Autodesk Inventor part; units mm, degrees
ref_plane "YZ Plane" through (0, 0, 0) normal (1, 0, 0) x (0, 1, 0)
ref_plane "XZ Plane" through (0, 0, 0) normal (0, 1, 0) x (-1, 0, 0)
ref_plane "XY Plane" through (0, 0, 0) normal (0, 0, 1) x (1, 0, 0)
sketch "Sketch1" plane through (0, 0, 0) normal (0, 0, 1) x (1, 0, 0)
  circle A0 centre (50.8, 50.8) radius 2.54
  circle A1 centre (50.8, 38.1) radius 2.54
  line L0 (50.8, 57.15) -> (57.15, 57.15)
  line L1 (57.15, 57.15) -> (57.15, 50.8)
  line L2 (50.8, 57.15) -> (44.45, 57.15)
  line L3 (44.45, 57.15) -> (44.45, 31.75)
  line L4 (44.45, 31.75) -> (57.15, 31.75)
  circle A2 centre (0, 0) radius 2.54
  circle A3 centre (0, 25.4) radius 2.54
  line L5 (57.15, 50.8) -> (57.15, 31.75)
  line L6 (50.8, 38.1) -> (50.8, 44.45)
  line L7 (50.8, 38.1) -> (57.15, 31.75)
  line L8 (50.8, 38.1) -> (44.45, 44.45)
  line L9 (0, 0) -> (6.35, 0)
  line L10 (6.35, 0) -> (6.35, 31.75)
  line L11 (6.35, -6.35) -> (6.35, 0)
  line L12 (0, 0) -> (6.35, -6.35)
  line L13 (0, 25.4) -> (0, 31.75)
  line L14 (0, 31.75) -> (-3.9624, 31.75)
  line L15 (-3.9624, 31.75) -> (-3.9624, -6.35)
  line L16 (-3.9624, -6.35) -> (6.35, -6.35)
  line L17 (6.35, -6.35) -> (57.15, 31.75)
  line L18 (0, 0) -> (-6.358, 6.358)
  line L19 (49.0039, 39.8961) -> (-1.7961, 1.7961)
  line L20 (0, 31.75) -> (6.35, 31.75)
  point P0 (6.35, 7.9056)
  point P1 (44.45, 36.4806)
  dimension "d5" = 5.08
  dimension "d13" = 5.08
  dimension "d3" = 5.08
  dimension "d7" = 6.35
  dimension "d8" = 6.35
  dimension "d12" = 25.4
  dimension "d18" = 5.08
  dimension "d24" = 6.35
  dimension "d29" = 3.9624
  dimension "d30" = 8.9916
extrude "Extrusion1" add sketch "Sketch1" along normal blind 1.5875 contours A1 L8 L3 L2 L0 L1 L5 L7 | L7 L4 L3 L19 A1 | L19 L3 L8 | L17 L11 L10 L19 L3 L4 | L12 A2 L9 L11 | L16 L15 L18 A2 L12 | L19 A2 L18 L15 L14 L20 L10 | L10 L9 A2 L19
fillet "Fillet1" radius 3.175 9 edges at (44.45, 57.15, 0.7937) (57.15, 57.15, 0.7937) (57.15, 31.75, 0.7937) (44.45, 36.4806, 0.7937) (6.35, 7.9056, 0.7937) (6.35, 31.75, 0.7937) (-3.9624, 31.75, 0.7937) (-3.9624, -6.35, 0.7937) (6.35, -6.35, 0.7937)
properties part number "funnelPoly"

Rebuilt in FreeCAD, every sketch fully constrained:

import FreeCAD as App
import Part
import Sketcher

V = App.Vector
Q = App.Units.Quantity


def edges_at(feature, points):
    """Names of the edges that pass closest to the given points."""
    edges = feature.Shape.Edges
    near = lambda p: min(range(len(edges)), key=lambda i: edges[i].distToShape(Part.Vertex(*p))[0])
    return sorted({f"Edge{near(p) + 1}" for p in points})

doc = App.newDocument("Part")
body = doc.addObject("PartDesign::Body", "Body")

# Sketch on XY plane
sketch1 = body.newObject("Sketcher::SketchObject", "Sketch")
sketch1.AttachmentSupport = (doc.getObject("XY_Plane"), [""])
sketch1.MapMode = "FlatFace"
sketch1.addGeometry(Part.LineSegment(V(44.5, 57.1, 0), V(44.5, 36.5, 0)), False)
sketch1.addGeometry(Part.LineSegment(V(44.5, 36.5, 0), V(6.3, 7.9, 0)), False)
sketch1.addGeometry(Part.LineSegment(V(6.3, 7.9, 0), V(6.3, 31.8, 0)), False)
sketch1.addGeometry(Part.LineSegment(V(6.3, 31.8, 0), V(0, 31.8, 0)), False)
sketch1.addGeometry(Part.LineSegment(V(0, 31.8, 0), V(-4, 31.8, 0)), False)
sketch1.addGeometry(Part.LineSegment(V(-4, 31.8, 0), V(-4, -6.3, 0)), False)
sketch1.addGeometry(Part.LineSegment(V(-4, -6.3, 0), V(6.3, -6.3, 0)), False)
sketch1.addGeometry(Part.LineSegment(V(6.3, -6.3, 0), V(57.1, 31.8, 0)), False)
sketch1.addGeometry(Part.LineSegment(V(57.1, 31.8, 0), V(57.1, 57.1, 0)), False)
sketch1.addGeometry(Part.LineSegment(V(57.1, 57.1, 0), V(44.5, 57.1, 0)), False)
sketch1.addGeometry(Part.Circle(V(50.8, 38.1, 0), V(0, 0, 1), 2.5), False)
sketch1.addGeometry(Part.Circle(V(50.8, 50.8, 0), V(0, 0, 1), 2.5), False)
sketch1.addGeometry(Part.Circle(V(0, 0, 0), V(0, 0, 1), 2.5), False)
sketch1.addGeometry(Part.Circle(V(0, 25.4, 0), V(0, 0, 1), 2.5), False)
sketch1.addConstraint(Sketcher.Constraint("Coincident", 0, 2, 1, 1))
sketch1.addConstraint(Sketcher.Constraint("Coincident", 1, 2, 2, 1))
sketch1.addConstraint(Sketcher.Constraint("Coincident", 2, 2, 3, 1))
sketch1.addConstraint(Sketcher.Constraint("Coincident", 3, 2, 4, 1))
sketch1.addConstraint(Sketcher.Constraint("Coincident", 4, 2, 5, 1))
sketch1.addConstraint(Sketcher.Constraint("Coincident", 5, 2, 6, 1))
sketch1.addConstraint(Sketcher.Constraint("Coincident", 6, 2, 7, 1))
sketch1.addConstraint(Sketcher.Constraint("Coincident", 7, 2, 8, 1))
sketch1.addConstraint(Sketcher.Constraint("Coincident", 8, 2, 9, 1))
sketch1.addConstraint(Sketcher.Constraint("Coincident", 9, 2, 0, 1))
sketch1.addConstraint(Sketcher.Constraint("Vertical", 0))
sketch1.addConstraint(Sketcher.Constraint("Vertical", 2))
sketch1.addConstraint(Sketcher.Constraint("Horizontal", 3))
sketch1.addConstraint(Sketcher.Constraint("Horizontal", 4))
sketch1.addConstraint(Sketcher.Constraint("Vertical", 5))
sketch1.addConstraint(Sketcher.Constraint("Horizontal", 6))
sketch1.addConstraint(Sketcher.Constraint("Vertical", 8))
sketch1.addConstraint(Sketcher.Constraint("Horizontal", 9))
sketch1.addConstraint(Sketcher.Constraint("Coincident", 12, 3, -1, 1))
sketch1.addConstraint(Sketcher.Constraint("Equal", 10, 11))
sketch1.addConstraint(Sketcher.Constraint("Equal", 11, 12))
sketch1.addConstraint(Sketcher.Constraint("Equal", 12, 13))
sketch1.addConstraint(Sketcher.Constraint("PointOnObject", 13, 3, -2))
sketch1.addConstraint(Sketcher.Constraint("PointOnObject", 3, 2, -2))
sketch1.addConstraint(Sketcher.Constraint("Parallel", 1, 7))
sketch1.addConstraint(Sketcher.Constraint("Horizontal", 4, 2, 7, 2))
sketch1.addConstraint(Sketcher.Constraint("Vertical", 10, 3, 11, 3))
sketch1.addConstraint(Sketcher.Constraint("Vertical", 2, 2, 6, 2))
sketch1.addConstraint(Sketcher.Constraint("Diameter", 10, Q("0.2 in")))
sketch1.addConstraint(Sketcher.Constraint("DistanceY", 8, 1, 8, 2, Q("1 in")))
sketch1.addConstraint(Sketcher.Constraint("DistanceY", -1, 1, 13, 3, Q("1 in")))
sketch1.addConstraint(Sketcher.Constraint("DistanceY", 13, 3, 11, 3, Q("1 in")))
sketch1.addConstraint(Sketcher.Constraint("DistanceX", 3, 2, 3, 1, Q("0.25 in")))
sketch1.addConstraint(Sketcher.Constraint("DistanceX", 4, 2, 4, 1, Q("0.156 in")))
sketch1.addConstraint(Sketcher.Constraint("DistanceY", 5, 2, -1, 1, Q("0.25 in")))
sketch1.addConstraint(Sketcher.Constraint("DistanceX", 0, 2, 10, 3, Q("0.25 in")))
sketch1.addConstraint(Sketcher.Constraint("DistanceY", 13, 3, 2, 2, Q("0.25 in")))
sketch1.addConstraint(Sketcher.Constraint("DistanceY", 2, 2, 10, 3, Q("0.25 in")))
sketch1.addConstraint(Sketcher.Constraint("DistanceX", 10, 3, 7, 2, Q("0.25 in")))
sketch1.addConstraint(Sketcher.Constraint("DistanceX", -1, 1, 10, 3, Q("2 in")))
sketch1.addConstraint(Sketcher.Constraint("DistanceY", 0, 2, 0, 1, Q("20.6693 mm")))
pad1 = body.newObject("PartDesign::Pad", "Pad")
pad1.Profile = sketch1
pad1.Length = Q("0.0625 in")
doc.recompute()

fillet = body.newObject("PartDesign::Fillet", "Fillet")
fillet.Base = (pad1, edges_at(pad1, [
    (44.45, 57.15, 0.794),
    (57.15, 57.15, 0.794),
    (57.15, 31.75, 0.794),
    (44.45, 36.481, 0.794),
    (6.35, 7.906, 0.794),
    (6.35, 31.75, 0.794),
    (-3.962, 31.75, 0.794),
    (-3.962, -6.35, 0.794),
    (6.35, -6.35, 0.794),
]))
fillet.Radius = Q("0.125 in")

doc.recompute()
